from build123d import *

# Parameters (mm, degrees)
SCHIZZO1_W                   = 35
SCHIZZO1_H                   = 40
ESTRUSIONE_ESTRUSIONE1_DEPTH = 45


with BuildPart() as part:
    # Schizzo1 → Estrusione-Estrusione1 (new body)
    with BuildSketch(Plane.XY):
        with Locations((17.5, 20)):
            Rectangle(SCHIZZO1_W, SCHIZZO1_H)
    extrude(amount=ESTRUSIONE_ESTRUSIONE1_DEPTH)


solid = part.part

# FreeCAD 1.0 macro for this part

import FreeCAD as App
import Part
import Sketcher
Q = App.Units.Quantity


def add_polygon(sketch, points):
    """Adds a closed chain of lines whose ends are joined by coincident constraints."""
    first, n = sketch.GeometryCount, len(points)
    for a, b in zip(points, points[1:] + points[:1]):
        sketch.addGeometry(Part.LineSegment(App.Vector(*a, 0), App.Vector(*b, 0)), False)
    for i in range(n):
        sketch.addConstraint(Sketcher.Constraint("Coincident", first + i, 2, first + (i + 1) % n, 1))

doc = App.newDocument("Part")
body = doc.addObject("PartDesign::Body", "Body")

# Sketch on XY plane
sketch1 = body.newObject("Sketcher::SketchObject", "Sketch")
sketch1.AttachmentSupport = (doc.getObject("XY_Plane"), [""])
sketch1.MapMode = "FlatFace"
add_polygon(sketch1, [(0, 40), (0, 0), (35, 0), (35, 40)])  # lines 0-3
sketch1.addConstraint([
    Sketcher.Constraint("Vertical", 0),
    Sketcher.Constraint("Horizontal", 1),
    Sketcher.Constraint("Vertical", 2),
    Sketcher.Constraint("Horizontal", 3),
    Sketcher.Constraint("Coincident", 0, 2, -1, 1),
    Sketcher.Constraint("DistanceX", 1, 1, 1, 2, Q("35 mm")),
    Sketcher.Constraint("DistanceY", 0, 2, 0, 1, Q("40 mm")),
])
pad1 = body.newObject("PartDesign::Pad", "Pad")
pad1.Profile = sketch1
pad1.Length = 45

doc.recompute()
